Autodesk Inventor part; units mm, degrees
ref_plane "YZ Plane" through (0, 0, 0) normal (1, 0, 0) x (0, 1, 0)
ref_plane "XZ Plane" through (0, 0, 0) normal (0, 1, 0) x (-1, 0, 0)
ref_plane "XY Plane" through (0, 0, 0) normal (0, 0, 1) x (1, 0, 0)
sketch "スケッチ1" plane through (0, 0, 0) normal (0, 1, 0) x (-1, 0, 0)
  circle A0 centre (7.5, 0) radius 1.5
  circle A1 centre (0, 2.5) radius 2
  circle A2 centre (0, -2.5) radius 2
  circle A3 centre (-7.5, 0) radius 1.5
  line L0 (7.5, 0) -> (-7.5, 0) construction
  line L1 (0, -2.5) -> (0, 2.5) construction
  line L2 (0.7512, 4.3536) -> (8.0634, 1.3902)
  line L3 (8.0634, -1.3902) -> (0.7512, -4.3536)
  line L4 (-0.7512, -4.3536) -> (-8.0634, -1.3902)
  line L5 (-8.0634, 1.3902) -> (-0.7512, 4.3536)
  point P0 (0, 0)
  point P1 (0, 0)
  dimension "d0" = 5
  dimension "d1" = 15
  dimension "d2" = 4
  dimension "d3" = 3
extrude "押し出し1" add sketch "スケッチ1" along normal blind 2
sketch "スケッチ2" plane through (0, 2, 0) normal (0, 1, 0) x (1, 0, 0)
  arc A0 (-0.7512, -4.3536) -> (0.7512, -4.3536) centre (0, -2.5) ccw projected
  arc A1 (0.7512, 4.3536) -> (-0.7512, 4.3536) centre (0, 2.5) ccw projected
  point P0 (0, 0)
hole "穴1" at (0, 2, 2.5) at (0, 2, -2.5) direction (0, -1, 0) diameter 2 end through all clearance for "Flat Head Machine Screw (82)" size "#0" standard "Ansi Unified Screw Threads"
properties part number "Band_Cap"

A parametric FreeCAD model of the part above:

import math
import FreeCAD as App
import Part
import Sketcher
from FreeCAD import Vector

doc = App.newDocument("Part")
params = doc.addObject("Spreadsheet::Sheet", "Params")
for row, (alias, value) in enumerate([
    ("sketch1_radius", "2 mm"),
    ("sketch1_radius2", "1.5 mm"),
    ("pad1_length", "2 mm"),
    ("sketch2_diameter", "2 mm"),
    ("hole_diameter", "2 mm"),
], start=1):
    params.set(f"A{row}", alias)
    params.set(f"B{row}", "=" + value)
    params.setAlias(f"B{row}", alias)

body = doc.addObject("PartDesign::Body", "Body")

# Sketch on XZ plane
sketch1 = body.newObject("Sketcher::SketchObject", "Sketch")
sketch1.AttachmentSupport = (doc.getObject("XZ_Plane"), [""])
sketch1.MapMode = "FlatFace"
sketch1.addGeometry([
    Part.ArcOfCircle(Part.Circle(Vector(-7.5, 0, 0), Vector(0, 0, 1), 1.5), math.radians(112), math.radians(248)),  # 0
    Part.LineSegment(Vector(-8.1, 1.4, 0), Vector(-0.8, 4.4, 0)),  # 1
    Part.ArcOfCircle(Part.Circle(Vector(0, 2.5, 0), Vector(0, 0, 1), 2), math.radians(68), math.radians(112)),  # 2
    Part.LineSegment(Vector(0.8, 4.4, 0), Vector(8.1, 1.4, 0)),  # 3
    Part.ArcOfCircle(Part.Circle(Vector(7.5, 0, 0), Vector(0, 0, 1), 1.5), math.radians(-68), math.radians(68)),  # 4
    Part.LineSegment(Vector(8.1, -1.4, 0), Vector(0.8, -4.4, 0)),  # 5
    Part.ArcOfCircle(Part.Circle(Vector(0, -2.5, 0), Vector(0, 0, 1), 2), math.radians(-112), math.radians(-68)),  # 6
    Part.LineSegment(Vector(-0.8, -4.4, 0), Vector(-8.1, -1.4, 0)),  # 7
], False)
sketch1.addConstraint([
    Sketcher.Constraint("Tangent", 0, 1, 1, 1),
    Sketcher.Constraint("Tangent", 1, 2, 2, 2),
    Sketcher.Constraint("Tangent", 2, 1, 3, 1),
    Sketcher.Constraint("Tangent", 3, 2, 4, 2),
    Sketcher.Constraint("Tangent", 4, 1, 5, 1),
    Sketcher.Constraint("Tangent", 5, 2, 6, 2),
    Sketcher.Constraint("Tangent", 6, 1, 7, 1),
    Sketcher.Constraint("Tangent", 7, 2, 0, 2),
    Sketcher.Constraint("Equal", 0, 4),
    Sketcher.Constraint("Equal", 2, 6),
    Sketcher.Constraint("Symmetric", 0, 3, 4, 3, -1, 1),
    Sketcher.Constraint("Symmetric", 2, 3, 6, 3, -1, 1),
    Sketcher.Constraint("Symmetric", 1, 2, 2, 1, -2),
    Sketcher.Constraint("Radius", 2, 2.0),
    Sketcher.Constraint("Radius", 0, 1.5),
    Sketcher.Constraint("DistanceX", 0, 3, 4, 3, 15.0),
    Sketcher.Constraint("DistanceY", 6, 3, 2, 3, 5.0),
])
sketch1.setExpression("Constraints[13]", "Params.sketch1_radius")
sketch1.setExpression("Constraints[14]", "Params.sketch1_radius2")
pad1 = body.newObject("PartDesign::Pad", "Pad")
pad1.Profile = sketch1
pad1.setExpression("Length", "Params.pad1_length")
pad1.Reversed = True

# Sketch on XZ plane
sketch2 = body.newObject("Sketcher::SketchObject", "Sketch001")
sketch2.AttachmentSupport = (doc.getObject("XZ_Plane"), [""])
sketch2.MapMode = "FlatFace"
sketch2.AttachmentOffset = App.Placement(Vector(0, 0, -2), App.Rotation())
sketch2.addGeometry([
    Part.Circle(Vector(0, 2.5, 0), Vector(0, 0, 1), 1),
    Part.Circle(Vector(0, -2.5, 0), Vector(0, 0, 1), 1),
], False)
sketch2.addConstraint([
    Sketcher.Constraint("Equal", 0, 1),
    Sketcher.Constraint("Symmetric", 0, 3, 1, 3, -1, 1),
    Sketcher.Constraint("PointOnObject", 0, 3, -2),
    Sketcher.Constraint("Diameter", 0, 2.0),
    Sketcher.Constraint("DistanceY", 1, 3, 0, 3, 5.0),
])
sketch2.setExpression("Constraints[3]", "Params.sketch2_diameter")
doc.recompute()
hole = body.newObject("PartDesign::Hole", "Hole")
hole.Profile = sketch2
hole.ThreadType = "None"
hole.setExpression("Diameter", "Params.hole_diameter")
hole.DepthType = "ThroughAll"
hole.Reversed = True

doc.recompute()
